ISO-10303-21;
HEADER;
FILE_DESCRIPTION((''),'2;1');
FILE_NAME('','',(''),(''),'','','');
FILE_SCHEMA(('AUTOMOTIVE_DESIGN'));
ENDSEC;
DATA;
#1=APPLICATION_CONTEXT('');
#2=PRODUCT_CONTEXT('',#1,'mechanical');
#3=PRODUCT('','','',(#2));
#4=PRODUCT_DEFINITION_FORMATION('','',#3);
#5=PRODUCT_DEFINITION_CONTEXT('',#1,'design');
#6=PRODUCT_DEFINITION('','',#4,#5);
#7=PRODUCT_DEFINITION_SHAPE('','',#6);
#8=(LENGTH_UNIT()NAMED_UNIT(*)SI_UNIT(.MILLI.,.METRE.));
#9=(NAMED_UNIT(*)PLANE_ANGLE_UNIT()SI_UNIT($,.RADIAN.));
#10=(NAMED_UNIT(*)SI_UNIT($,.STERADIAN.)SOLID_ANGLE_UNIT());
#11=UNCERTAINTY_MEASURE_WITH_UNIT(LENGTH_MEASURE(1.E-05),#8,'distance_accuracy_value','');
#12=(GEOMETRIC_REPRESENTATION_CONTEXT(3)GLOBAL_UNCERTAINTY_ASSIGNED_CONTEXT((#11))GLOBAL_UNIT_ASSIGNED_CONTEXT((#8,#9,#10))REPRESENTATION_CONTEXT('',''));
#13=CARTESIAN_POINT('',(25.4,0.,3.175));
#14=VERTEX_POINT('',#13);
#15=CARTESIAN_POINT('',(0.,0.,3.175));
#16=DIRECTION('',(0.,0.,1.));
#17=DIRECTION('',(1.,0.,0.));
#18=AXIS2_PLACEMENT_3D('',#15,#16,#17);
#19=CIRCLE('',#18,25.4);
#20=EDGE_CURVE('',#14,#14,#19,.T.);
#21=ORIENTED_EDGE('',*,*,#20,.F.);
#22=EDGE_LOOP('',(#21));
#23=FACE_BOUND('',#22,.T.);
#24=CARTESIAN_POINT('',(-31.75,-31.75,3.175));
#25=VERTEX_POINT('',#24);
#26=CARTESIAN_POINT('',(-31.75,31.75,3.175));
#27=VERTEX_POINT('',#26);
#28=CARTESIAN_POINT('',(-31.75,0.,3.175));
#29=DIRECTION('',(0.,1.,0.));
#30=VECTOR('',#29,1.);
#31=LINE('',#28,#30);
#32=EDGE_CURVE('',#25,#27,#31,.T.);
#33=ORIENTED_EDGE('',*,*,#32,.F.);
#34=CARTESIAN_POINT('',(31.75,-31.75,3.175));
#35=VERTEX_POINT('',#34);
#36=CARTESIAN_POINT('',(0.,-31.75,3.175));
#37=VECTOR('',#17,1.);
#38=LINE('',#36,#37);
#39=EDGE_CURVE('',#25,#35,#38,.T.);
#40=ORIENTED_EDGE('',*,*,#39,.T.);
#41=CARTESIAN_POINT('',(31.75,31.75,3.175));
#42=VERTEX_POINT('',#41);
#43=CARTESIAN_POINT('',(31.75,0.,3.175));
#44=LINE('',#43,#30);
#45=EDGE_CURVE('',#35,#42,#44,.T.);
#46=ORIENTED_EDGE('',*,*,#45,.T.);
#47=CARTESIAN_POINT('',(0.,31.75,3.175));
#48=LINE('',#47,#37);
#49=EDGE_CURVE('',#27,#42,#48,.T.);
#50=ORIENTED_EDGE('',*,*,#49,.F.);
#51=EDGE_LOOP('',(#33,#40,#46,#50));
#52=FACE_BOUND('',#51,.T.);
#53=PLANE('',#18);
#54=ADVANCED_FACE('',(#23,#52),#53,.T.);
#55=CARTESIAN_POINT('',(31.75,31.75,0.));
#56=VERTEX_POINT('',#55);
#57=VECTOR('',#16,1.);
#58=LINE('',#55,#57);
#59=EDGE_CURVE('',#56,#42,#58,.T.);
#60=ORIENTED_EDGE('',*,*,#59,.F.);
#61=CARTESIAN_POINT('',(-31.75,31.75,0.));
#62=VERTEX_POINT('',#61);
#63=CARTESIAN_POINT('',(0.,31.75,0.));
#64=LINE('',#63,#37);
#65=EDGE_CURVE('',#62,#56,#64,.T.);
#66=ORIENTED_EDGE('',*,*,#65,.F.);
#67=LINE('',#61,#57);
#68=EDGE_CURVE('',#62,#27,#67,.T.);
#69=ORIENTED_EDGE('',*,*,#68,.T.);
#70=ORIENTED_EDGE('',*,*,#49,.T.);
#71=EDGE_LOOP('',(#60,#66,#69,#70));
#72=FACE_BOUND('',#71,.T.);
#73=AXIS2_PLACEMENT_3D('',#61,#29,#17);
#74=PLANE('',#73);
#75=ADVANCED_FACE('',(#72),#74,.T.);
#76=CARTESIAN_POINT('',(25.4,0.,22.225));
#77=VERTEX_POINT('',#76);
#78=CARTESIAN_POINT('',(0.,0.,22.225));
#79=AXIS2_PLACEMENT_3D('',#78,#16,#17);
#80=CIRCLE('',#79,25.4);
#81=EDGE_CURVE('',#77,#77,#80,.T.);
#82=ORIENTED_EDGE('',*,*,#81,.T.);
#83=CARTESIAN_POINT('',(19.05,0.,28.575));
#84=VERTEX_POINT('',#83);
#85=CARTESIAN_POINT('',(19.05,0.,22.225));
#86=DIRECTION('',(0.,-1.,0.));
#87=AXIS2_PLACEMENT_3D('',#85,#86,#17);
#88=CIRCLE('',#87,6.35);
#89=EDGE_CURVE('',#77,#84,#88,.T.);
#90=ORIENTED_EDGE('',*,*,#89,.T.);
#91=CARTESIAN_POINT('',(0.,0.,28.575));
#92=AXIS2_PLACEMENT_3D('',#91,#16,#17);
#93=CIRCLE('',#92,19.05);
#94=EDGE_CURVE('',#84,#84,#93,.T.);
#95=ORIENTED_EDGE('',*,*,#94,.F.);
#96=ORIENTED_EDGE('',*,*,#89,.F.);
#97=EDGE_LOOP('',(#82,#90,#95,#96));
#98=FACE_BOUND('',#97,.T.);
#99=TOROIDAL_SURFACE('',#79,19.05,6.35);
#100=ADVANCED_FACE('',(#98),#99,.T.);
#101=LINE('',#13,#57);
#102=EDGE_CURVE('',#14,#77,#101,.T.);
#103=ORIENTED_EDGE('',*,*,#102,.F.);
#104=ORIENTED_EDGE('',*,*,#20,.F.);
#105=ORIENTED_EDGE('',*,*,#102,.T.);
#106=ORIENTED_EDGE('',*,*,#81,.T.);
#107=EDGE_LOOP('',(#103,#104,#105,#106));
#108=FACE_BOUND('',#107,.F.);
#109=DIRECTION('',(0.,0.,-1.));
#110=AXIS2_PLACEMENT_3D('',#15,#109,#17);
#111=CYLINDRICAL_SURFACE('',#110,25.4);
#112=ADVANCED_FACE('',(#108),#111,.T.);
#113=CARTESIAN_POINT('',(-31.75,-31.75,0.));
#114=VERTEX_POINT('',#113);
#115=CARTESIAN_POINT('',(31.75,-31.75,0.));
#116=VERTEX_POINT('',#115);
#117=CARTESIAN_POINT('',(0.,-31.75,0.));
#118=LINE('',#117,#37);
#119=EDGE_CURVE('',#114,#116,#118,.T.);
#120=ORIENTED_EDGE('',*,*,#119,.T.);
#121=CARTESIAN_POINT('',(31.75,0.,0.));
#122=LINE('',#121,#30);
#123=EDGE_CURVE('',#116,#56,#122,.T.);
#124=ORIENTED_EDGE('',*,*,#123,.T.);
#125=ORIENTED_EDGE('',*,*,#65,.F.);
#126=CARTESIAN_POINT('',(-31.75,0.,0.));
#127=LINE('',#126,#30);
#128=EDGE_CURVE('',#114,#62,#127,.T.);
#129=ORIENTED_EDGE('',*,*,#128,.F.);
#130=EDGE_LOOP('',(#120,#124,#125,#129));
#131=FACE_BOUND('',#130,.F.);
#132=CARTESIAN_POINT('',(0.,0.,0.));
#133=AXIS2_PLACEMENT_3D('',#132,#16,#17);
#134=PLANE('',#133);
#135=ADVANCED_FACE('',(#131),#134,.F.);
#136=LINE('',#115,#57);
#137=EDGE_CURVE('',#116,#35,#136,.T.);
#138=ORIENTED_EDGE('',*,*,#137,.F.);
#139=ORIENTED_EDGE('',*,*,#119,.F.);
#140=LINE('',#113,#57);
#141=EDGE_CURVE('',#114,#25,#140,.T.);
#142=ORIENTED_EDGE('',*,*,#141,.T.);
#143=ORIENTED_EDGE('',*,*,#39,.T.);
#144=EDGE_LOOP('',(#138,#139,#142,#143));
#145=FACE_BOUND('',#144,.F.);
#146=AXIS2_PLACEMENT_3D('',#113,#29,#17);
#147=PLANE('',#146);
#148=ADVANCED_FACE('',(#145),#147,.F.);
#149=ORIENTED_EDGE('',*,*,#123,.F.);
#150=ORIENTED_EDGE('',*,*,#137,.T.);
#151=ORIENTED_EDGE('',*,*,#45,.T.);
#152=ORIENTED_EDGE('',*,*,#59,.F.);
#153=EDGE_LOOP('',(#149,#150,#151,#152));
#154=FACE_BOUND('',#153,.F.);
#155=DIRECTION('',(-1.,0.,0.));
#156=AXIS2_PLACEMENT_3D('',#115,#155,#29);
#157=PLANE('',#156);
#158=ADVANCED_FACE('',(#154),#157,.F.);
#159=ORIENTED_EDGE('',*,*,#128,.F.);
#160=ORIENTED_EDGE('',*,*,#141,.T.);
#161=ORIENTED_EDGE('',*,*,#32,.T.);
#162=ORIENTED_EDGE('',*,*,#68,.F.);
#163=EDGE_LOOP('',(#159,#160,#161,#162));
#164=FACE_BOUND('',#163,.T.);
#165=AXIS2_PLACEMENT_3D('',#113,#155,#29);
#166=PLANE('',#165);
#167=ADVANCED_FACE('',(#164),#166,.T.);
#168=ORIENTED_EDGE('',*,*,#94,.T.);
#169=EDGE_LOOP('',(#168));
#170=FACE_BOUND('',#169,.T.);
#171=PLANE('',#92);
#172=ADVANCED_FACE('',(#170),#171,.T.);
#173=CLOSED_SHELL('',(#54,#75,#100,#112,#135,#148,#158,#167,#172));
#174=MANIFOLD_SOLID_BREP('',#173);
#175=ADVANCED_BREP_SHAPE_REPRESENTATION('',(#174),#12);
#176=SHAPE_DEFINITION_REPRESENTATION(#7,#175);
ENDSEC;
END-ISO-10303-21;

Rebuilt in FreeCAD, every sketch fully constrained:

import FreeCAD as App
import Part
import Sketcher
from FreeCAD import Vector
Q = App.Units.Quantity


def edges_at(feature, points):
    """Names of the edges that pass closest to the given points."""
    edges = feature.Shape.Edges
    near = lambda p: min(range(len(edges)), key=lambda i: edges[i].distToShape(Part.Vertex(*p))[0])
    return sorted({f"Edge{near(p) + 1}" for p in points})


def add_polygon(sketch, points):
    """Adds a closed chain of lines whose ends are joined by coincident constraints."""
    first, n = sketch.GeometryCount, len(points)
    for a, b in zip(points, points[1:] + points[:1]):
        sketch.addGeometry(Part.LineSegment(App.Vector(*a, 0), App.Vector(*b, 0)), False)
    for i in range(n):
        sketch.addConstraint(Sketcher.Constraint("Coincident", first + i, 2, first + (i + 1) % n, 1))

doc = App.newDocument("Part")
body = doc.addObject("PartDesign::Body", "Body")

# Sketch on XY plane
sketch1 = body.newObject("Sketcher::SketchObject", "Sketch")
sketch1.AttachmentSupport = (doc.getObject("XY_Plane"), [""])
sketch1.MapMode = "FlatFace"
add_polygon(sketch1, [(-32, 32), (-32, -32), (32, -32), (32, 32)])  # lines 0-3
sketch1.addConstraint(Sketcher.Constraint("Vertical", 0))
sketch1.addConstraint(Sketcher.Constraint("Horizontal", 1))
sketch1.addConstraint(Sketcher.Constraint("Vertical", 2))
sketch1.addConstraint(Sketcher.Constraint("Horizontal", 3))
sketch1.addConstraint(Sketcher.Constraint("Symmetric", 0, 2, 2, 2, -1, 1))
sketch1.addConstraint(Sketcher.Constraint("Equal", 3, 0))
sketch1.addConstraint(Sketcher.Constraint("DistanceX", 1, 1, 1, 2, Q("2.5 in")))
pad1 = body.newObject("PartDesign::Pad", "Pad")
pad1.Profile = sketch1
pad1.Length = Q("0.125 in")

# Sketch on XY plane
sketch2 = body.newObject("Sketcher::SketchObject", "Sketch001")
sketch2.AttachmentSupport = (doc.getObject("XY_Plane"), [""])
sketch2.MapMode = "FlatFace"
sketch2.AttachmentOffset = App.Placement(Vector(0, 0, 0.125 * 25.4), App.Rotation())
sketch2.addGeometry(Part.Circle(Vector(0, 0, 0), Vector(0, 0, 1), 25), False)
sketch2.addConstraint(Sketcher.Constraint("Coincident", 0, 3, -1, 1))
sketch2.addConstraint(Sketcher.Constraint("Diameter", 0, Q("2 in")))
pad2 = body.newObject("PartDesign::Pad", "Pad001")
pad2.Profile = sketch2
pad2.Length = Q("1 in")
doc.recompute()

fillet = body.newObject("PartDesign::Fillet", "Fillet")
fillet.Base = (pad2, edges_at(pad2, [(-25.4, 0, 28.575)]))
fillet.Radius = Q("0.25 in")

doc.recompute()
